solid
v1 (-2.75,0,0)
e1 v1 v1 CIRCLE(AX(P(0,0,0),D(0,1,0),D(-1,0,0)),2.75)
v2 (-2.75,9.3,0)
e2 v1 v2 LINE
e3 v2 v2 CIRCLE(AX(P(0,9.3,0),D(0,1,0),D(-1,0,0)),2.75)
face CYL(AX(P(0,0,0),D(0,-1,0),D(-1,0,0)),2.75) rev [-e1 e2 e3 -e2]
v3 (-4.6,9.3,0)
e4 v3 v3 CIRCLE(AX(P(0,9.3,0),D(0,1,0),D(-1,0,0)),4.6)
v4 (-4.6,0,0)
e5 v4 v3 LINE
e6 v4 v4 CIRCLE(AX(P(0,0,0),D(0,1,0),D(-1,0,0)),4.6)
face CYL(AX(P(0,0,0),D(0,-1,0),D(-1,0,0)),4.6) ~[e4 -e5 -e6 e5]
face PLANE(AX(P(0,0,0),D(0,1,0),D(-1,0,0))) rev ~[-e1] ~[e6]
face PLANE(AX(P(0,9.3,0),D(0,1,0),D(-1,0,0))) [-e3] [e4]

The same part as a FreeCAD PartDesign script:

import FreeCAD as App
import Part
import Sketcher

doc = App.newDocument("Part")
body = doc.addObject("PartDesign::Body", "Body")

sketch1 = body.newObject("Sketcher::SketchObject", "Sketch")
sketch1.AttachmentSupport = (doc.getObject("XZ_Plane"), [""])
sketch1.MapMode = "FlatFace"
sketch1.addGeometry([
    Part.Circle(App.Vector(0, 0, 0), App.Vector(0, 0, 1), 4.6),
    Part.Circle(App.Vector(0, 0, 0), App.Vector(0, 0, 1), 2.75),
], False)
sketch1.addConstraint([
    Sketcher.Constraint("Coincident", 0, 3, -1, 1),
    Sketcher.Constraint("Coincident", 1, 3, -1, 1),
    Sketcher.Constraint("Diameter", 0, 9.2),
    Sketcher.Constraint("Diameter", 1, 5.5),
])
pad1 = body.newObject("PartDesign::Pad", "Pad")
pad1.Profile = sketch1
pad1.Length = 9.3
pad1.Reversed = True

doc.recompute()
